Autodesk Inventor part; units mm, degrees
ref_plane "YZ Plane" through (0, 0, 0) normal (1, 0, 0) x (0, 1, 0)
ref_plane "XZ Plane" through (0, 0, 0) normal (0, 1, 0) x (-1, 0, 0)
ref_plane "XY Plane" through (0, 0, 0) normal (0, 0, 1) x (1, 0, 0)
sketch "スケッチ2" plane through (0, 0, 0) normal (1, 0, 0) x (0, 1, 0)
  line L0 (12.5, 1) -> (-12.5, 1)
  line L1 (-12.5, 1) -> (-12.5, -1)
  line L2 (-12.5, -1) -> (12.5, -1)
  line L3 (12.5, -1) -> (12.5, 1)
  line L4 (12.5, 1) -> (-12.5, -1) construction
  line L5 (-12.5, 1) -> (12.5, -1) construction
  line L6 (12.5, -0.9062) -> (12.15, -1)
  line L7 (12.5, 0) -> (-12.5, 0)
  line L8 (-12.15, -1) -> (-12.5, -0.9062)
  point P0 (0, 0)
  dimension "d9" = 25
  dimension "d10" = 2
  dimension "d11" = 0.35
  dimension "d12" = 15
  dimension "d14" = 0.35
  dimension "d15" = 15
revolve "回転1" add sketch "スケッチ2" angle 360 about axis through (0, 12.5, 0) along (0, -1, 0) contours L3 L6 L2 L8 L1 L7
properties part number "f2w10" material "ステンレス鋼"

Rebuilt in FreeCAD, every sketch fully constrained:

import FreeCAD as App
import Part
import Sketcher
from FreeCAD import Vector
Q = App.Units.Quantity

doc = App.newDocument("Part")
body = doc.addObject("PartDesign::Body", "Body")

# Sketch on YZ plane
sketch1 = body.newObject("Sketcher::SketchObject", "Sketch")
sketch1.AttachmentSupport = (doc.getObject("YZ_Plane"), [""])
sketch1.MapMode = "FlatFace"
sketch1.addGeometry([
    Part.LineSegment(Vector(12.5, -0.9062, 0), Vector(12.5, 0, 0)),  # 0
    Part.LineSegment(Vector(12.5, 0, 0), Vector(-12.5, 0, 0)),  # 1
    Part.LineSegment(Vector(-12.5, 0, 0), Vector(-12.5, -0.9062, 0)),  # 2
    Part.LineSegment(Vector(-12.5, -0.9062, 0), Vector(-12.15, -1, 0)),  # 3
    Part.LineSegment(Vector(-12.15, -1, 0), Vector(12.15, -1, 0)),  # 4
    Part.LineSegment(Vector(12.15, -1, 0), Vector(12.5, -0.9062, 0)),  # 5
], False)
sketch1.addConstraint([
    Sketcher.Constraint("Coincident", 0, 2, 1, 1),
    Sketcher.Constraint("Coincident", 1, 2, 2, 1),
    Sketcher.Constraint("Coincident", 2, 2, 3, 1),
    Sketcher.Constraint("Coincident", 3, 2, 4, 1),
    Sketcher.Constraint("Coincident", 4, 2, 5, 1),
    Sketcher.Constraint("Coincident", 5, 2, 0, 1),
    Sketcher.Constraint("Vertical", 0),
    Sketcher.Constraint("Horizontal", 1),
    Sketcher.Constraint("Vertical", 2),
    Sketcher.Constraint("Horizontal", 4),
    Sketcher.Constraint("Symmetric", 0, 2, 1, 2, -1, 1),
    Sketcher.Constraint("Horizontal", 2, 2, 5, 2),
    Sketcher.Constraint("Equal", 3, 5),
    Sketcher.Constraint("DistanceX", 1, 2, 1, 1, Q("25 mm")),
    Sketcher.Constraint("DistanceX", 2, 2, 3, 2, Q("0.35 mm")),
    Sketcher.Constraint("DistanceY", 3, 2, -1, 1, Q("1 mm")),
    Sketcher.Constraint("DistanceY", 0, 1, 0, 2, Q("0.9062 mm")),
])
revolution = body.newObject("PartDesign::Revolution", "Revolution")
revolution.Profile = sketch1
revolution.ReferenceAxis = (sketch1, ["H_Axis"])
revolution.Angle = 360

doc.recompute()
